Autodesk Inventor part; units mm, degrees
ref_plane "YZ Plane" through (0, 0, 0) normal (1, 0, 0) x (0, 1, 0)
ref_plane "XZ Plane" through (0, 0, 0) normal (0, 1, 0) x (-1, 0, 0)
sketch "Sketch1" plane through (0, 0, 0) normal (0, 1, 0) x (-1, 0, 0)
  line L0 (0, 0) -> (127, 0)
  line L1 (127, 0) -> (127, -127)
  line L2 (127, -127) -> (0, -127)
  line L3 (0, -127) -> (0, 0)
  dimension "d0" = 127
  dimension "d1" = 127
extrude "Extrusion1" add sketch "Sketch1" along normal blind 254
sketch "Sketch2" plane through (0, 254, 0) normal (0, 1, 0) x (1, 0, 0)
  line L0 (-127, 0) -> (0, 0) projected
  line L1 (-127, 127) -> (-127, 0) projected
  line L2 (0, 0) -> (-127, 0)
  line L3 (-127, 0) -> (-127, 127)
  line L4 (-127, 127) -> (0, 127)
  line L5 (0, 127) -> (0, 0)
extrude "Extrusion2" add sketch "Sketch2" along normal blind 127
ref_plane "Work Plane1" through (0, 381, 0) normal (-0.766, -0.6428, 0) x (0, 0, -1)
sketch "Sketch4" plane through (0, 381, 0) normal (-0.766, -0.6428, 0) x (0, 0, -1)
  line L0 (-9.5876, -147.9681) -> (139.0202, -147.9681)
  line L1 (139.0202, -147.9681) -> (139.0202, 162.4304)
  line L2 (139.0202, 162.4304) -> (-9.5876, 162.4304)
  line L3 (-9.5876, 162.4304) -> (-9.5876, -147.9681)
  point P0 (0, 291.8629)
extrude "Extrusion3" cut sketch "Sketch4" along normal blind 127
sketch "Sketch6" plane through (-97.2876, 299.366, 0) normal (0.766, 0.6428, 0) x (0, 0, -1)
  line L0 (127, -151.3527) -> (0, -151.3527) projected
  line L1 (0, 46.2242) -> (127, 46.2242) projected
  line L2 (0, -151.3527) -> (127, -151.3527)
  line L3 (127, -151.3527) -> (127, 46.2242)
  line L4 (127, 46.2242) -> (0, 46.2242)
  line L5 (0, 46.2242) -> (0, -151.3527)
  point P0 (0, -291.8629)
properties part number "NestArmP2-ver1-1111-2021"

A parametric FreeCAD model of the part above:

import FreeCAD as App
import Part
import Sketcher

V = App.Vector
Q = App.Units.Quantity


def add_polygon(sketch, points):
    """Adds a closed chain of lines whose ends are joined by coincident constraints."""
    first, n = sketch.GeometryCount, len(points)
    for a, b in zip(points, points[1:] + points[:1]):
        sketch.addGeometry(Part.LineSegment(App.Vector(*a, 0), App.Vector(*b, 0)), False)
    for i in range(n):
        sketch.addConstraint(Sketcher.Constraint("Coincident", first + i, 2, first + (i + 1) % n, 1))

doc = App.newDocument("Part")
body = doc.addObject("PartDesign::Body", "Body")

# Sketch on XZ plane
sketch1 = doc.addObject("Sketcher::SketchObject", "Sketch")
body.addObject(sketch1)
sketch1.AttachmentSupport = (doc.XZ_Plane, [""])
sketch1.MapMode = "FlatFace"
add_polygon(sketch1, [(-127, 0), (0, 0), (0, -127), (-127, -127)])  # lines 0-3
sketch1.addConstraint([
    Sketcher.Constraint("Horizontal", 0),
    Sketcher.Constraint("Vertical", 1),
    Sketcher.Constraint("Horizontal", 2),
    Sketcher.Constraint("Vertical", 3),
    Sketcher.Constraint("Coincident", 0, 2, -1, 1),
    Sketcher.Constraint("Equal", 2, 1),
    Sketcher.Constraint("DistanceX", 0, 1, 0, 2, Q("5 in")),
])
pad1 = doc.addObject("PartDesign::Pad", "Pad")
body.addObject(pad1)
pad1.Profile = sketch1
pad1.Length = Q("10 in")
pad1.Reversed = True

# Sketch on XZ plane
sketch2 = doc.addObject("Sketcher::SketchObject", "Sketch001")
body.addObject(sketch2)
sketch2.AttachmentSupport = (doc.XZ_Plane, [""])
sketch2.MapMode = "FlatFace"
sketch2.AttachmentOffset = App.Placement(V(0, 0, -10 * 25.4), App.Rotation())
add_polygon(sketch2, [(-127, -127), (-127, 0), (0, 0), (0, -127)])  # lines 0-3
sketch2.addConstraint([
    Sketcher.Constraint("Vertical", 0),
    Sketcher.Constraint("Horizontal", 1),
    Sketcher.Constraint("Vertical", 2),
    Sketcher.Constraint("Horizontal", 3),
    Sketcher.Constraint("Coincident", 1, 2, -1, 1),
    Sketcher.Constraint("Equal", 3, 0),
    Sketcher.Constraint("DistanceX", 1, 1, 1, 2, Q("5 in")),
])
pad2 = doc.addObject("PartDesign::Pad", "Pad001")
body.addObject(pad2)
pad2.Profile = sketch2
pad2.Length = Q("5 in")
pad2.Reversed = True

# Sketch on an angled plane
sketch3 = doc.addObject("Sketcher::SketchObject", "Sketch002")
body.addObject(sketch3)
sketch3.Placement = App.Placement(V(0, 381, 0), App.Rotation(V(0, 0, -1), V(0.64278761, -0.766044443, 0), V(-0.766044443, -0.64278761, 0), "ZXY"))
add_polygon(sketch3, [(-10, 162), (-10, -148), (139, -148), (139, 162)])  # lines 0-3
sketch3.addConstraint([
    Sketcher.Constraint("Vertical", 0),
    Sketcher.Constraint("Horizontal", 1),
    Sketcher.Constraint("Vertical", 2),
    Sketcher.Constraint("Horizontal", 3),
    Sketcher.Constraint("DistanceX", 1, 1, 1, 2, Q("5.8507 in")),
    Sketcher.Constraint("DistanceY", 0, 2, 0, 1, 310.3985),
    Sketcher.Constraint("DistanceY", -1, 1, 2, 2, Q("6.3949 in")),
    Sketcher.Constraint("DistanceX", 0, 2, -1, 1, 9.5876),
])
pocket1 = doc.addObject("PartDesign::Pocket", "Pocket")
body.addObject(pocket1)
pocket1.Profile = sketch3
pocket1.Length = Q("5 in")
pocket1.Reversed = True

doc.recompute()
